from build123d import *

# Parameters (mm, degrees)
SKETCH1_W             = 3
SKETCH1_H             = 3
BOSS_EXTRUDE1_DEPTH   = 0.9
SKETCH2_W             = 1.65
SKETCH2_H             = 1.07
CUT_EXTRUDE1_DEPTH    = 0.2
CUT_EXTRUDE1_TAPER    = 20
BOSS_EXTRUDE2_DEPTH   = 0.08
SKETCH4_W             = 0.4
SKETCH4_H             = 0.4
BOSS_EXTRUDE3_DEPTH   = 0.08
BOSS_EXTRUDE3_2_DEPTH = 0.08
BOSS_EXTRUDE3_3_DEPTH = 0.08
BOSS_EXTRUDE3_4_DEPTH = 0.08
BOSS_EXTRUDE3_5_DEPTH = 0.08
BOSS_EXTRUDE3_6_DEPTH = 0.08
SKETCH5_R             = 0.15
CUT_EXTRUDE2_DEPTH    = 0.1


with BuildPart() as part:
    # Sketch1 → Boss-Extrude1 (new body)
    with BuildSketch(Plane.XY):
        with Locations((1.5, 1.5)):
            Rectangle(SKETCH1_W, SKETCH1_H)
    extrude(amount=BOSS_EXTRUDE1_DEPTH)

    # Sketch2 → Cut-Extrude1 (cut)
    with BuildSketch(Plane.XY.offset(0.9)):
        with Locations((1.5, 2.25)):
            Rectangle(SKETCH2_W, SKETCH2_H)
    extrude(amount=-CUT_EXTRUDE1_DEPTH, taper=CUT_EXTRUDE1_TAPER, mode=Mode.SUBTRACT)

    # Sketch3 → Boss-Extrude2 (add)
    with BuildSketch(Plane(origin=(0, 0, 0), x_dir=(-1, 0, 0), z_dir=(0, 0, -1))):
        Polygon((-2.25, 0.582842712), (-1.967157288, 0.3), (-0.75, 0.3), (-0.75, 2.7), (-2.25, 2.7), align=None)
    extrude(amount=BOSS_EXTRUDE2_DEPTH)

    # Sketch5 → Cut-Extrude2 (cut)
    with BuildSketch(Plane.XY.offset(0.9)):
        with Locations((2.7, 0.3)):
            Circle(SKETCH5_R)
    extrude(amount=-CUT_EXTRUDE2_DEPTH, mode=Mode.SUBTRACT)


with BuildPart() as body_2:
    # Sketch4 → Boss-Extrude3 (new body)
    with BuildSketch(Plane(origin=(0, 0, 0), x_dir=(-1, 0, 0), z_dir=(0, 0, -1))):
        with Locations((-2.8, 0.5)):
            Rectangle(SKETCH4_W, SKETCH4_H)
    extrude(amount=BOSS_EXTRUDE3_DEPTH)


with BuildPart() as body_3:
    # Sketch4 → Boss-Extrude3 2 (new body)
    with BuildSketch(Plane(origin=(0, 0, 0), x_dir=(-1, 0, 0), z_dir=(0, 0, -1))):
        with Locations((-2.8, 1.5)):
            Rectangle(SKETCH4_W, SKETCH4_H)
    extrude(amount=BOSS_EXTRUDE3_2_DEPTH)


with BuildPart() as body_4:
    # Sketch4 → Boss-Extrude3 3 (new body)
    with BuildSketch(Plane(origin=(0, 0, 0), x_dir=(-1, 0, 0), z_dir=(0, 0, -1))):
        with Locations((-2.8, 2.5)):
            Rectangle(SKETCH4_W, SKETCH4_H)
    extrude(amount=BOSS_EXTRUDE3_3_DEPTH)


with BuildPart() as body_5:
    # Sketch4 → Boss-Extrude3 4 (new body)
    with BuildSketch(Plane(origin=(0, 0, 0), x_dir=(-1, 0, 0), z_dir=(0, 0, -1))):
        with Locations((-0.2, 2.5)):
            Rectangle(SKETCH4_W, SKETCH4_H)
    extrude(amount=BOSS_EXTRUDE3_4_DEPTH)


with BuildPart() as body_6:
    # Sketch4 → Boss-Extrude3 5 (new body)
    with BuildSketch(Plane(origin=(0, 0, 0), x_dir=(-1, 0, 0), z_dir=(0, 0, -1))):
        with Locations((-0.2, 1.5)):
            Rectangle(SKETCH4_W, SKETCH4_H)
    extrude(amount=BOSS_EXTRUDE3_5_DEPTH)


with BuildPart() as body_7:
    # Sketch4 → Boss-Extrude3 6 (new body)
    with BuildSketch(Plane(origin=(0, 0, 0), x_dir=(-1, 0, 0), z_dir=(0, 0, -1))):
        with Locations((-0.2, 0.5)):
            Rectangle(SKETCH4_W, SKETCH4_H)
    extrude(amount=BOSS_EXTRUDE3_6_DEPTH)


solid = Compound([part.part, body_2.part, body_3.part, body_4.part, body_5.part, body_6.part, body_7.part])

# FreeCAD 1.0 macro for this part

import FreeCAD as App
import Part
import Sketcher

V = App.Vector
Q = App.Units.Quantity

doc = App.newDocument("Part")
body = doc.addObject("PartDesign::Body", "Body")

# Sketch on XY plane
sketch1 = doc.addObject("Sketcher::SketchObject", "Sketch")
body.addObject(sketch1)
sketch1.AttachmentSupport = (doc.XY_Plane, [""])
sketch1.MapMode = "FlatFace"
sketch1.addGeometry([
    Part.LineSegment(V(0, 3, 0), V(0, 0, 0)),
    Part.LineSegment(V(0, 0, 0), V(3, 0, 0)),
    Part.LineSegment(V(3, 0, 0), V(3, 3, 0)),
    Part.LineSegment(V(3, 3, 0), V(0, 3, 0)),
], False)
sketch1.addConstraint([
    Sketcher.Constraint("Coincident", 0, 2, 1, 1),
    Sketcher.Constraint("Coincident", 1, 2, 2, 1),
    Sketcher.Constraint("Coincident", 2, 2, 3, 1),
    Sketcher.Constraint("Coincident", 3, 2, 0, 1),
    Sketcher.Constraint("Vertical", 0),
    Sketcher.Constraint("Horizontal", 1),
    Sketcher.Constraint("Vertical", 2),
    Sketcher.Constraint("Horizontal", 3),
    Sketcher.Constraint("Coincident", 0, 2, -1, 1),
    Sketcher.Constraint("Equal", 3, 0),
    Sketcher.Constraint("DistanceX", 1, 1, 1, 2, Q("3 mm")),
])
pad1 = doc.addObject("PartDesign::Pad", "Pad")
body.addObject(pad1)
pad1.Profile = sketch1
pad1.Length = 0.9

# Sketch on XY plane
sketch2 = doc.addObject("Sketcher::SketchObject", "Sketch001")
body.addObject(sketch2)
sketch2.AttachmentSupport = (doc.XY_Plane, [""])
sketch2.MapMode = "FlatFace"
sketch2.AttachmentOffset = App.Placement(V(0, 0, 0.9), App.Rotation())
sketch2.addGeometry([
    Part.LineSegment(V(0.675, 2.785, 0), V(0.675, 1.715, 0)),
    Part.LineSegment(V(0.675, 1.715, 0), V(2.325, 1.715, 0)),
    Part.LineSegment(V(2.325, 1.715, 0), V(2.325, 2.785, 0)),
    Part.LineSegment(V(2.325, 2.785, 0), V(0.675, 2.785, 0)),
], False)
sketch2.addConstraint([
    Sketcher.Constraint("Coincident", 0, 2, 1, 1),
    Sketcher.Constraint("Coincident", 1, 2, 2, 1),
    Sketcher.Constraint("Coincident", 2, 2, 3, 1),
    Sketcher.Constraint("Coincident", 3, 2, 0, 1),
    Sketcher.Constraint("Vertical", 0),
    Sketcher.Constraint("Horizontal", 1),
    Sketcher.Constraint("Vertical", 2),
    Sketcher.Constraint("Horizontal", 3),
    Sketcher.Constraint("DistanceX", 1, 1, 1, 2, Q("1.65 mm")),
    Sketcher.Constraint("DistanceY", 0, 2, 0, 1, Q("1.07 mm")),
    Sketcher.Constraint("DistanceX", -1, 1, 0, 2, Q("0.675 mm")),
    Sketcher.Constraint("DistanceY", -1, 1, 0, 2, Q("1.715 mm")),
])
pocket1 = doc.addObject("PartDesign::Pocket", "Pocket")
body.addObject(pocket1)
pocket1.Profile = sketch2
pocket1.Length = 0.2
pocket1.TaperAngle = -20

# Sketch on XY plane
sketch3 = doc.addObject("Sketcher::SketchObject", "Sketch002")
body.addObject(sketch3)
sketch3.AttachmentSupport = (doc.XY_Plane, [""])
sketch3.MapMode = "FlatFace"
sketch3.addGeometry([
    Part.LineSegment(V(2.25, 0.582843, 0), V(1.967157, 0.3, 0)),  # 0
    Part.LineSegment(V(1.967157, 0.3, 0), V(0.75, 0.3, 0)),  # 1
    Part.LineSegment(V(0.75, 0.3, 0), V(0.75, 2.7, 0)),  # 2
    Part.LineSegment(V(0.75, 2.7, 0), V(2.25, 2.7, 0)),  # 3
    Part.LineSegment(V(2.25, 2.7, 0), V(2.25, 0.582843, 0)),  # 4
], False)
sketch3.addConstraint([
    Sketcher.Constraint("Coincident", 0, 2, 1, 1),
    Sketcher.Constraint("Coincident", 1, 2, 2, 1),
    Sketcher.Constraint("Coincident", 2, 2, 3, 1),
    Sketcher.Constraint("Coincident", 3, 2, 4, 1),
    Sketcher.Constraint("Coincident", 4, 2, 0, 1),
    Sketcher.Constraint("Horizontal", 1),
    Sketcher.Constraint("Vertical", 2),
    Sketcher.Constraint("Horizontal", 3),
    Sketcher.Constraint("Vertical", 4),
    Sketcher.Constraint("Angle", 0, Q("-135 deg")),
    Sketcher.Constraint("DistanceX", 3, 1, 3, 2, Q("1.5 mm")),
    Sketcher.Constraint("DistanceY", 2, 1, 2, 2, Q("2.4 mm")),
    Sketcher.Constraint("Distance", 0, Q("0.4 mm")),
    Sketcher.Constraint("DistanceY", -1, 1, 0, 2, Q("0.3 mm")),
    Sketcher.Constraint("DistanceX", -1, 1, 1, 2, Q("0.75 mm")),
])
pad2 = doc.addObject("PartDesign::Pad", "Pad001")
body.addObject(pad2)
pad2.Profile = sketch3
pad2.Length = 0.08
pad2.Reversed = True

# Sketch on XY plane
sketch4 = doc.addObject("Sketcher::SketchObject", "Sketch003")
body.addObject(sketch4)
sketch4.AttachmentSupport = (doc.XY_Plane, [""])
sketch4.MapMode = "FlatFace"
sketch4.AttachmentOffset = App.Placement(V(0, 0, 0.9), App.Rotation())
sketch4.addGeometry(Part.Circle(V(2.7, 0.3, 0), V(0, 0, 1), 0.15), False)
sketch4.addConstraint([
    Sketcher.Constraint("Diameter", 0, Q("0.3 mm")),
    Sketcher.Constraint("DistanceX", -1, 1, 0, 3, Q("2.7 mm")),
    Sketcher.Constraint("DistanceY", -1, 1, 0, 3, Q("0.3 mm")),
])
pocket2 = doc.addObject("PartDesign::Pocket", "Pocket001")
body.addObject(pocket2)
pocket2.Profile = sketch4
pocket2.Length = 0.1
body2 = doc.addObject("PartDesign::Body", "Body001")

# Sketch on XY plane
sketch5 = doc.addObject("Sketcher::SketchObject", "Sketch004")
body2.addObject(sketch5)
sketch5.AttachmentSupport = (doc.getObject("XY_Plane001"), [""])
sketch5.MapMode = "FlatFace"
sketch5.addGeometry([
    Part.LineSegment(V(3, 0.7, 0), V(3, 0.3, 0)),
    Part.LineSegment(V(3, 0.3, 0), V(2.6, 0.3, 0)),
    Part.LineSegment(V(2.6, 0.3, 0), V(2.6, 0.7, 0)),
    Part.LineSegment(V(2.6, 0.7, 0), V(3, 0.7, 0)),
], False)
sketch5.addConstraint([
    Sketcher.Constraint("Coincident", 0, 2, 1, 1),
    Sketcher.Constraint("Coincident", 1, 2, 2, 1),
    Sketcher.Constraint("Coincident", 2, 2, 3, 1),
    Sketcher.Constraint("Coincident", 3, 2, 0, 1),
    Sketcher.Constraint("Vertical", 0),
    Sketcher.Constraint("Horizontal", 1),
    Sketcher.Constraint("Vertical", 2),
    Sketcher.Constraint("Horizontal", 3),
    Sketcher.Constraint("Equal", 3, 0),
    Sketcher.Constraint("DistanceX", 1, 2, 1, 1, Q("0.4 mm")),
    Sketcher.Constraint("DistanceX", -1, 1, 0, 2, Q("3 mm")),
    Sketcher.Constraint("DistanceY", -1, 1, 0, 2, Q("0.3 mm")),
])
pad3 = doc.addObject("PartDesign::Pad", "Pad002")
body2.addObject(pad3)
pad3.Profile = sketch5
pad3.Length = 0.08
pad3.Reversed = True
body3 = doc.addObject("PartDesign::Body", "Body002")

# Sketch on XY plane
sketch6 = doc.addObject("Sketcher::SketchObject", "Sketch005")
body3.addObject(sketch6)
sketch6.AttachmentSupport = (doc.getObject("XY_Plane002"), [""])
sketch6.MapMode = "FlatFace"
sketch6.addGeometry([
    Part.LineSegment(V(3, 1.7, 0), V(3, 1.3, 0)),
    Part.LineSegment(V(3, 1.3, 0), V(2.6, 1.3, 0)),
    Part.LineSegment(V(2.6, 1.3, 0), V(2.6, 1.7, 0)),
    Part.LineSegment(V(2.6, 1.7, 0), V(3, 1.7, 0)),
], False)
sketch6.addConstraint([
    Sketcher.Constraint("Coincident", 0, 2, 1, 1),
    Sketcher.Constraint("Coincident", 1, 2, 2, 1),
    Sketcher.Constraint("Coincident", 2, 2, 3, 1),
    Sketcher.Constraint("Coincident", 3, 2, 0, 1),
    Sketcher.Constraint("Vertical", 0),
    Sketcher.Constraint("Horizontal", 1),
    Sketcher.Constraint("Vertical", 2),
    Sketcher.Constraint("Horizontal", 3),
    Sketcher.Constraint("Equal", 3, 0),
    Sketcher.Constraint("DistanceX", 1, 2, 1, 1, Q("0.4 mm")),
    Sketcher.Constraint("DistanceX", -1, 1, 0, 2, Q("3 mm")),
    Sketcher.Constraint("DistanceY", -1, 1, 0, 2, Q("1.3 mm")),
])
pad4 = doc.addObject("PartDesign::Pad", "Pad003")
body3.addObject(pad4)
pad4.Profile = sketch6
pad4.Length = 0.08
pad4.Reversed = True
body4 = doc.addObject("PartDesign::Body", "Body003")

# Sketch on XY plane
sketch7 = doc.addObject("Sketcher::SketchObject", "Sketch006")
body4.addObject(sketch7)
sketch7.AttachmentSupport = (doc.getObject("XY_Plane003"), [""])
sketch7.MapMode = "FlatFace"
sketch7.addGeometry([
    Part.LineSegment(V(3, 2.7, 0), V(3, 2.3, 0)),
    Part.LineSegment(V(3, 2.3, 0), V(2.6, 2.3, 0)),
    Part.LineSegment(V(2.6, 2.3, 0), V(2.6, 2.7, 0)),
    Part.LineSegment(V(2.6, 2.7, 0), V(3, 2.7, 0)),
], False)
sketch7.addConstraint([
    Sketcher.Constraint("Coincident", 0, 2, 1, 1),
    Sketcher.Constraint("Coincident", 1, 2, 2, 1),
    Sketcher.Constraint("Coincident", 2, 2, 3, 1),
    Sketcher.Constraint("Coincident", 3, 2, 0, 1),
    Sketcher.Constraint("Vertical", 0),
    Sketcher.Constraint("Horizontal", 1),
    Sketcher.Constraint("Vertical", 2),
    Sketcher.Constraint("Horizontal", 3),
    Sketcher.Constraint("Equal", 3, 0),
    Sketcher.Constraint("DistanceX", 1, 2, 1, 1, Q("0.4 mm")),
    Sketcher.Constraint("DistanceX", -1, 1, 0, 2, Q("3 mm")),
    Sketcher.Constraint("DistanceY", -1, 1, 0, 2, Q("2.3 mm")),
])
pad5 = doc.addObject("PartDesign::Pad", "Pad004")
body4.addObject(pad5)
pad5.Profile = sketch7
pad5.Length = 0.08
pad5.Reversed = True
body5 = doc.addObject("PartDesign::Body", "Body004")

# Sketch on XY plane
sketch8 = doc.addObject("Sketcher::SketchObject", "Sketch007")
body5.addObject(sketch8)
sketch8.AttachmentSupport = (doc.getObject("XY_Plane004"), [""])
sketch8.MapMode = "FlatFace"
sketch8.addGeometry([
    Part.LineSegment(V(0.4, 2.7, 0), V(0.4, 2.3, 0)),
    Part.LineSegment(V(0.4, 2.3, 0), V(0, 2.3, 0)),
    Part.LineSegment(V(0, 2.3, 0), V(0, 2.7, 0)),
    Part.LineSegment(V(0, 2.7, 0), V(0.4, 2.7, 0)),
], False)
sketch8.addConstraint([
    Sketcher.Constraint("Coincident", 0, 2, 1, 1),
    Sketcher.Constraint("Coincident", 1, 2, 2, 1),
    Sketcher.Constraint("Coincident", 2, 2, 3, 1),
    Sketcher.Constraint("Coincident", 3, 2, 0, 1),
    Sketcher.Constraint("Vertical", 0),
    Sketcher.Constraint("Horizontal", 1),
    Sketcher.Constraint("Vertical", 2),
    Sketcher.Constraint("Horizontal", 3),
    Sketcher.Constraint("PointOnObject", 1, 2, -2),
    Sketcher.Constraint("Equal", 3, 0),
    Sketcher.Constraint("DistanceX", 1, 2, 1, 1, Q("0.4 mm")),
    Sketcher.Constraint("DistanceY", -1, 1, 0, 2, Q("2.3 mm")),
])
pad6 = doc.addObject("PartDesign::Pad", "Pad005")
body5.addObject(pad6)
pad6.Profile = sketch8
pad6.Length = 0.08
pad6.Reversed = True
body6 = doc.addObject("PartDesign::Body", "Body005")

# Sketch on XY plane
sketch9 = doc.addObject("Sketcher::SketchObject", "Sketch008")
body6.addObject(sketch9)
sketch9.AttachmentSupport = (doc.getObject("XY_Plane005"), [""])
sketch9.MapMode = "FlatFace"
sketch9.addGeometry([
    Part.LineSegment(V(0.4, 1.7, 0), V(0.4, 1.3, 0)),
    Part.LineSegment(V(0.4, 1.3, 0), V(0, 1.3, 0)),
    Part.LineSegment(V(0, 1.3, 0), V(0, 1.7, 0)),
    Part.LineSegment(V(0, 1.7, 0), V(0.4, 1.7, 0)),
], False)
sketch9.addConstraint([
    Sketcher.Constraint("Coincident", 0, 2, 1, 1),
    Sketcher.Constraint("Coincident", 1, 2, 2, 1),
    Sketcher.Constraint("Coincident", 2, 2, 3, 1),
    Sketcher.Constraint("Coincident", 3, 2, 0, 1),
    Sketcher.Constraint("Vertical", 0),
    Sketcher.Constraint("Horizontal", 1),
    Sketcher.Constraint("Vertical", 2),
    Sketcher.Constraint("Horizontal", 3),
    Sketcher.Constraint("PointOnObject", 1, 2, -2),
    Sketcher.Constraint("Equal", 3, 0),
    Sketcher.Constraint("DistanceX", 1, 2, 1, 1, Q("0.4 mm")),
    Sketcher.Constraint("DistanceY", -1, 1, 0, 2, Q("1.3 mm")),
])
pad7 = doc.addObject("PartDesign::Pad", "Pad006")
body6.addObject(pad7)
pad7.Profile = sketch9
pad7.Length = 0.08
pad7.Reversed = True
body7 = doc.addObject("PartDesign::Body", "Body006")

# Sketch on XY plane
sketch10 = doc.addObject("Sketcher::SketchObject", "Sketch009")
body7.addObject(sketch10)
sketch10.AttachmentSupport = (doc.getObject("XY_Plane006"), [""])
sketch10.MapMode = "FlatFace"
sketch10.addGeometry([
    Part.LineSegment(V(0.4, 0.7, 0), V(0.4, 0.3, 0)),
    Part.LineSegment(V(0.4, 0.3, 0), V(0, 0.3, 0)),
    Part.LineSegment(V(0, 0.3, 0), V(0, 0.7, 0)),
    Part.LineSegment(V(0, 0.7, 0), V(0.4, 0.7, 0)),
], False)
sketch10.addConstraint([
    Sketcher.Constraint("Coincident", 0, 2, 1, 1),
    Sketcher.Constraint("Coincident", 1, 2, 2, 1),
    Sketcher.Constraint("Coincident", 2, 2, 3, 1),
    Sketcher.Constraint("Coincident", 3, 2, 0, 1),
    Sketcher.Constraint("Vertical", 0),
    Sketcher.Constraint("Horizontal", 1),
    Sketcher.Constraint("Vertical", 2),
    Sketcher.Constraint("Horizontal", 3),
    Sketcher.Constraint("PointOnObject", 1, 2, -2),
    Sketcher.Constraint("Equal", 3, 0),
    Sketcher.Constraint("DistanceX", 1, 2, 1, 1, Q("0.4 mm")),
    Sketcher.Constraint("DistanceY", -1, 1, 0, 2, Q("0.3 mm")),
])
pad8 = doc.addObject("PartDesign::Pad", "Pad007")
body7.addObject(pad8)
pad8.Profile = sketch10
pad8.Length = 0.08
pad8.Reversed = True

doc.recompute()
